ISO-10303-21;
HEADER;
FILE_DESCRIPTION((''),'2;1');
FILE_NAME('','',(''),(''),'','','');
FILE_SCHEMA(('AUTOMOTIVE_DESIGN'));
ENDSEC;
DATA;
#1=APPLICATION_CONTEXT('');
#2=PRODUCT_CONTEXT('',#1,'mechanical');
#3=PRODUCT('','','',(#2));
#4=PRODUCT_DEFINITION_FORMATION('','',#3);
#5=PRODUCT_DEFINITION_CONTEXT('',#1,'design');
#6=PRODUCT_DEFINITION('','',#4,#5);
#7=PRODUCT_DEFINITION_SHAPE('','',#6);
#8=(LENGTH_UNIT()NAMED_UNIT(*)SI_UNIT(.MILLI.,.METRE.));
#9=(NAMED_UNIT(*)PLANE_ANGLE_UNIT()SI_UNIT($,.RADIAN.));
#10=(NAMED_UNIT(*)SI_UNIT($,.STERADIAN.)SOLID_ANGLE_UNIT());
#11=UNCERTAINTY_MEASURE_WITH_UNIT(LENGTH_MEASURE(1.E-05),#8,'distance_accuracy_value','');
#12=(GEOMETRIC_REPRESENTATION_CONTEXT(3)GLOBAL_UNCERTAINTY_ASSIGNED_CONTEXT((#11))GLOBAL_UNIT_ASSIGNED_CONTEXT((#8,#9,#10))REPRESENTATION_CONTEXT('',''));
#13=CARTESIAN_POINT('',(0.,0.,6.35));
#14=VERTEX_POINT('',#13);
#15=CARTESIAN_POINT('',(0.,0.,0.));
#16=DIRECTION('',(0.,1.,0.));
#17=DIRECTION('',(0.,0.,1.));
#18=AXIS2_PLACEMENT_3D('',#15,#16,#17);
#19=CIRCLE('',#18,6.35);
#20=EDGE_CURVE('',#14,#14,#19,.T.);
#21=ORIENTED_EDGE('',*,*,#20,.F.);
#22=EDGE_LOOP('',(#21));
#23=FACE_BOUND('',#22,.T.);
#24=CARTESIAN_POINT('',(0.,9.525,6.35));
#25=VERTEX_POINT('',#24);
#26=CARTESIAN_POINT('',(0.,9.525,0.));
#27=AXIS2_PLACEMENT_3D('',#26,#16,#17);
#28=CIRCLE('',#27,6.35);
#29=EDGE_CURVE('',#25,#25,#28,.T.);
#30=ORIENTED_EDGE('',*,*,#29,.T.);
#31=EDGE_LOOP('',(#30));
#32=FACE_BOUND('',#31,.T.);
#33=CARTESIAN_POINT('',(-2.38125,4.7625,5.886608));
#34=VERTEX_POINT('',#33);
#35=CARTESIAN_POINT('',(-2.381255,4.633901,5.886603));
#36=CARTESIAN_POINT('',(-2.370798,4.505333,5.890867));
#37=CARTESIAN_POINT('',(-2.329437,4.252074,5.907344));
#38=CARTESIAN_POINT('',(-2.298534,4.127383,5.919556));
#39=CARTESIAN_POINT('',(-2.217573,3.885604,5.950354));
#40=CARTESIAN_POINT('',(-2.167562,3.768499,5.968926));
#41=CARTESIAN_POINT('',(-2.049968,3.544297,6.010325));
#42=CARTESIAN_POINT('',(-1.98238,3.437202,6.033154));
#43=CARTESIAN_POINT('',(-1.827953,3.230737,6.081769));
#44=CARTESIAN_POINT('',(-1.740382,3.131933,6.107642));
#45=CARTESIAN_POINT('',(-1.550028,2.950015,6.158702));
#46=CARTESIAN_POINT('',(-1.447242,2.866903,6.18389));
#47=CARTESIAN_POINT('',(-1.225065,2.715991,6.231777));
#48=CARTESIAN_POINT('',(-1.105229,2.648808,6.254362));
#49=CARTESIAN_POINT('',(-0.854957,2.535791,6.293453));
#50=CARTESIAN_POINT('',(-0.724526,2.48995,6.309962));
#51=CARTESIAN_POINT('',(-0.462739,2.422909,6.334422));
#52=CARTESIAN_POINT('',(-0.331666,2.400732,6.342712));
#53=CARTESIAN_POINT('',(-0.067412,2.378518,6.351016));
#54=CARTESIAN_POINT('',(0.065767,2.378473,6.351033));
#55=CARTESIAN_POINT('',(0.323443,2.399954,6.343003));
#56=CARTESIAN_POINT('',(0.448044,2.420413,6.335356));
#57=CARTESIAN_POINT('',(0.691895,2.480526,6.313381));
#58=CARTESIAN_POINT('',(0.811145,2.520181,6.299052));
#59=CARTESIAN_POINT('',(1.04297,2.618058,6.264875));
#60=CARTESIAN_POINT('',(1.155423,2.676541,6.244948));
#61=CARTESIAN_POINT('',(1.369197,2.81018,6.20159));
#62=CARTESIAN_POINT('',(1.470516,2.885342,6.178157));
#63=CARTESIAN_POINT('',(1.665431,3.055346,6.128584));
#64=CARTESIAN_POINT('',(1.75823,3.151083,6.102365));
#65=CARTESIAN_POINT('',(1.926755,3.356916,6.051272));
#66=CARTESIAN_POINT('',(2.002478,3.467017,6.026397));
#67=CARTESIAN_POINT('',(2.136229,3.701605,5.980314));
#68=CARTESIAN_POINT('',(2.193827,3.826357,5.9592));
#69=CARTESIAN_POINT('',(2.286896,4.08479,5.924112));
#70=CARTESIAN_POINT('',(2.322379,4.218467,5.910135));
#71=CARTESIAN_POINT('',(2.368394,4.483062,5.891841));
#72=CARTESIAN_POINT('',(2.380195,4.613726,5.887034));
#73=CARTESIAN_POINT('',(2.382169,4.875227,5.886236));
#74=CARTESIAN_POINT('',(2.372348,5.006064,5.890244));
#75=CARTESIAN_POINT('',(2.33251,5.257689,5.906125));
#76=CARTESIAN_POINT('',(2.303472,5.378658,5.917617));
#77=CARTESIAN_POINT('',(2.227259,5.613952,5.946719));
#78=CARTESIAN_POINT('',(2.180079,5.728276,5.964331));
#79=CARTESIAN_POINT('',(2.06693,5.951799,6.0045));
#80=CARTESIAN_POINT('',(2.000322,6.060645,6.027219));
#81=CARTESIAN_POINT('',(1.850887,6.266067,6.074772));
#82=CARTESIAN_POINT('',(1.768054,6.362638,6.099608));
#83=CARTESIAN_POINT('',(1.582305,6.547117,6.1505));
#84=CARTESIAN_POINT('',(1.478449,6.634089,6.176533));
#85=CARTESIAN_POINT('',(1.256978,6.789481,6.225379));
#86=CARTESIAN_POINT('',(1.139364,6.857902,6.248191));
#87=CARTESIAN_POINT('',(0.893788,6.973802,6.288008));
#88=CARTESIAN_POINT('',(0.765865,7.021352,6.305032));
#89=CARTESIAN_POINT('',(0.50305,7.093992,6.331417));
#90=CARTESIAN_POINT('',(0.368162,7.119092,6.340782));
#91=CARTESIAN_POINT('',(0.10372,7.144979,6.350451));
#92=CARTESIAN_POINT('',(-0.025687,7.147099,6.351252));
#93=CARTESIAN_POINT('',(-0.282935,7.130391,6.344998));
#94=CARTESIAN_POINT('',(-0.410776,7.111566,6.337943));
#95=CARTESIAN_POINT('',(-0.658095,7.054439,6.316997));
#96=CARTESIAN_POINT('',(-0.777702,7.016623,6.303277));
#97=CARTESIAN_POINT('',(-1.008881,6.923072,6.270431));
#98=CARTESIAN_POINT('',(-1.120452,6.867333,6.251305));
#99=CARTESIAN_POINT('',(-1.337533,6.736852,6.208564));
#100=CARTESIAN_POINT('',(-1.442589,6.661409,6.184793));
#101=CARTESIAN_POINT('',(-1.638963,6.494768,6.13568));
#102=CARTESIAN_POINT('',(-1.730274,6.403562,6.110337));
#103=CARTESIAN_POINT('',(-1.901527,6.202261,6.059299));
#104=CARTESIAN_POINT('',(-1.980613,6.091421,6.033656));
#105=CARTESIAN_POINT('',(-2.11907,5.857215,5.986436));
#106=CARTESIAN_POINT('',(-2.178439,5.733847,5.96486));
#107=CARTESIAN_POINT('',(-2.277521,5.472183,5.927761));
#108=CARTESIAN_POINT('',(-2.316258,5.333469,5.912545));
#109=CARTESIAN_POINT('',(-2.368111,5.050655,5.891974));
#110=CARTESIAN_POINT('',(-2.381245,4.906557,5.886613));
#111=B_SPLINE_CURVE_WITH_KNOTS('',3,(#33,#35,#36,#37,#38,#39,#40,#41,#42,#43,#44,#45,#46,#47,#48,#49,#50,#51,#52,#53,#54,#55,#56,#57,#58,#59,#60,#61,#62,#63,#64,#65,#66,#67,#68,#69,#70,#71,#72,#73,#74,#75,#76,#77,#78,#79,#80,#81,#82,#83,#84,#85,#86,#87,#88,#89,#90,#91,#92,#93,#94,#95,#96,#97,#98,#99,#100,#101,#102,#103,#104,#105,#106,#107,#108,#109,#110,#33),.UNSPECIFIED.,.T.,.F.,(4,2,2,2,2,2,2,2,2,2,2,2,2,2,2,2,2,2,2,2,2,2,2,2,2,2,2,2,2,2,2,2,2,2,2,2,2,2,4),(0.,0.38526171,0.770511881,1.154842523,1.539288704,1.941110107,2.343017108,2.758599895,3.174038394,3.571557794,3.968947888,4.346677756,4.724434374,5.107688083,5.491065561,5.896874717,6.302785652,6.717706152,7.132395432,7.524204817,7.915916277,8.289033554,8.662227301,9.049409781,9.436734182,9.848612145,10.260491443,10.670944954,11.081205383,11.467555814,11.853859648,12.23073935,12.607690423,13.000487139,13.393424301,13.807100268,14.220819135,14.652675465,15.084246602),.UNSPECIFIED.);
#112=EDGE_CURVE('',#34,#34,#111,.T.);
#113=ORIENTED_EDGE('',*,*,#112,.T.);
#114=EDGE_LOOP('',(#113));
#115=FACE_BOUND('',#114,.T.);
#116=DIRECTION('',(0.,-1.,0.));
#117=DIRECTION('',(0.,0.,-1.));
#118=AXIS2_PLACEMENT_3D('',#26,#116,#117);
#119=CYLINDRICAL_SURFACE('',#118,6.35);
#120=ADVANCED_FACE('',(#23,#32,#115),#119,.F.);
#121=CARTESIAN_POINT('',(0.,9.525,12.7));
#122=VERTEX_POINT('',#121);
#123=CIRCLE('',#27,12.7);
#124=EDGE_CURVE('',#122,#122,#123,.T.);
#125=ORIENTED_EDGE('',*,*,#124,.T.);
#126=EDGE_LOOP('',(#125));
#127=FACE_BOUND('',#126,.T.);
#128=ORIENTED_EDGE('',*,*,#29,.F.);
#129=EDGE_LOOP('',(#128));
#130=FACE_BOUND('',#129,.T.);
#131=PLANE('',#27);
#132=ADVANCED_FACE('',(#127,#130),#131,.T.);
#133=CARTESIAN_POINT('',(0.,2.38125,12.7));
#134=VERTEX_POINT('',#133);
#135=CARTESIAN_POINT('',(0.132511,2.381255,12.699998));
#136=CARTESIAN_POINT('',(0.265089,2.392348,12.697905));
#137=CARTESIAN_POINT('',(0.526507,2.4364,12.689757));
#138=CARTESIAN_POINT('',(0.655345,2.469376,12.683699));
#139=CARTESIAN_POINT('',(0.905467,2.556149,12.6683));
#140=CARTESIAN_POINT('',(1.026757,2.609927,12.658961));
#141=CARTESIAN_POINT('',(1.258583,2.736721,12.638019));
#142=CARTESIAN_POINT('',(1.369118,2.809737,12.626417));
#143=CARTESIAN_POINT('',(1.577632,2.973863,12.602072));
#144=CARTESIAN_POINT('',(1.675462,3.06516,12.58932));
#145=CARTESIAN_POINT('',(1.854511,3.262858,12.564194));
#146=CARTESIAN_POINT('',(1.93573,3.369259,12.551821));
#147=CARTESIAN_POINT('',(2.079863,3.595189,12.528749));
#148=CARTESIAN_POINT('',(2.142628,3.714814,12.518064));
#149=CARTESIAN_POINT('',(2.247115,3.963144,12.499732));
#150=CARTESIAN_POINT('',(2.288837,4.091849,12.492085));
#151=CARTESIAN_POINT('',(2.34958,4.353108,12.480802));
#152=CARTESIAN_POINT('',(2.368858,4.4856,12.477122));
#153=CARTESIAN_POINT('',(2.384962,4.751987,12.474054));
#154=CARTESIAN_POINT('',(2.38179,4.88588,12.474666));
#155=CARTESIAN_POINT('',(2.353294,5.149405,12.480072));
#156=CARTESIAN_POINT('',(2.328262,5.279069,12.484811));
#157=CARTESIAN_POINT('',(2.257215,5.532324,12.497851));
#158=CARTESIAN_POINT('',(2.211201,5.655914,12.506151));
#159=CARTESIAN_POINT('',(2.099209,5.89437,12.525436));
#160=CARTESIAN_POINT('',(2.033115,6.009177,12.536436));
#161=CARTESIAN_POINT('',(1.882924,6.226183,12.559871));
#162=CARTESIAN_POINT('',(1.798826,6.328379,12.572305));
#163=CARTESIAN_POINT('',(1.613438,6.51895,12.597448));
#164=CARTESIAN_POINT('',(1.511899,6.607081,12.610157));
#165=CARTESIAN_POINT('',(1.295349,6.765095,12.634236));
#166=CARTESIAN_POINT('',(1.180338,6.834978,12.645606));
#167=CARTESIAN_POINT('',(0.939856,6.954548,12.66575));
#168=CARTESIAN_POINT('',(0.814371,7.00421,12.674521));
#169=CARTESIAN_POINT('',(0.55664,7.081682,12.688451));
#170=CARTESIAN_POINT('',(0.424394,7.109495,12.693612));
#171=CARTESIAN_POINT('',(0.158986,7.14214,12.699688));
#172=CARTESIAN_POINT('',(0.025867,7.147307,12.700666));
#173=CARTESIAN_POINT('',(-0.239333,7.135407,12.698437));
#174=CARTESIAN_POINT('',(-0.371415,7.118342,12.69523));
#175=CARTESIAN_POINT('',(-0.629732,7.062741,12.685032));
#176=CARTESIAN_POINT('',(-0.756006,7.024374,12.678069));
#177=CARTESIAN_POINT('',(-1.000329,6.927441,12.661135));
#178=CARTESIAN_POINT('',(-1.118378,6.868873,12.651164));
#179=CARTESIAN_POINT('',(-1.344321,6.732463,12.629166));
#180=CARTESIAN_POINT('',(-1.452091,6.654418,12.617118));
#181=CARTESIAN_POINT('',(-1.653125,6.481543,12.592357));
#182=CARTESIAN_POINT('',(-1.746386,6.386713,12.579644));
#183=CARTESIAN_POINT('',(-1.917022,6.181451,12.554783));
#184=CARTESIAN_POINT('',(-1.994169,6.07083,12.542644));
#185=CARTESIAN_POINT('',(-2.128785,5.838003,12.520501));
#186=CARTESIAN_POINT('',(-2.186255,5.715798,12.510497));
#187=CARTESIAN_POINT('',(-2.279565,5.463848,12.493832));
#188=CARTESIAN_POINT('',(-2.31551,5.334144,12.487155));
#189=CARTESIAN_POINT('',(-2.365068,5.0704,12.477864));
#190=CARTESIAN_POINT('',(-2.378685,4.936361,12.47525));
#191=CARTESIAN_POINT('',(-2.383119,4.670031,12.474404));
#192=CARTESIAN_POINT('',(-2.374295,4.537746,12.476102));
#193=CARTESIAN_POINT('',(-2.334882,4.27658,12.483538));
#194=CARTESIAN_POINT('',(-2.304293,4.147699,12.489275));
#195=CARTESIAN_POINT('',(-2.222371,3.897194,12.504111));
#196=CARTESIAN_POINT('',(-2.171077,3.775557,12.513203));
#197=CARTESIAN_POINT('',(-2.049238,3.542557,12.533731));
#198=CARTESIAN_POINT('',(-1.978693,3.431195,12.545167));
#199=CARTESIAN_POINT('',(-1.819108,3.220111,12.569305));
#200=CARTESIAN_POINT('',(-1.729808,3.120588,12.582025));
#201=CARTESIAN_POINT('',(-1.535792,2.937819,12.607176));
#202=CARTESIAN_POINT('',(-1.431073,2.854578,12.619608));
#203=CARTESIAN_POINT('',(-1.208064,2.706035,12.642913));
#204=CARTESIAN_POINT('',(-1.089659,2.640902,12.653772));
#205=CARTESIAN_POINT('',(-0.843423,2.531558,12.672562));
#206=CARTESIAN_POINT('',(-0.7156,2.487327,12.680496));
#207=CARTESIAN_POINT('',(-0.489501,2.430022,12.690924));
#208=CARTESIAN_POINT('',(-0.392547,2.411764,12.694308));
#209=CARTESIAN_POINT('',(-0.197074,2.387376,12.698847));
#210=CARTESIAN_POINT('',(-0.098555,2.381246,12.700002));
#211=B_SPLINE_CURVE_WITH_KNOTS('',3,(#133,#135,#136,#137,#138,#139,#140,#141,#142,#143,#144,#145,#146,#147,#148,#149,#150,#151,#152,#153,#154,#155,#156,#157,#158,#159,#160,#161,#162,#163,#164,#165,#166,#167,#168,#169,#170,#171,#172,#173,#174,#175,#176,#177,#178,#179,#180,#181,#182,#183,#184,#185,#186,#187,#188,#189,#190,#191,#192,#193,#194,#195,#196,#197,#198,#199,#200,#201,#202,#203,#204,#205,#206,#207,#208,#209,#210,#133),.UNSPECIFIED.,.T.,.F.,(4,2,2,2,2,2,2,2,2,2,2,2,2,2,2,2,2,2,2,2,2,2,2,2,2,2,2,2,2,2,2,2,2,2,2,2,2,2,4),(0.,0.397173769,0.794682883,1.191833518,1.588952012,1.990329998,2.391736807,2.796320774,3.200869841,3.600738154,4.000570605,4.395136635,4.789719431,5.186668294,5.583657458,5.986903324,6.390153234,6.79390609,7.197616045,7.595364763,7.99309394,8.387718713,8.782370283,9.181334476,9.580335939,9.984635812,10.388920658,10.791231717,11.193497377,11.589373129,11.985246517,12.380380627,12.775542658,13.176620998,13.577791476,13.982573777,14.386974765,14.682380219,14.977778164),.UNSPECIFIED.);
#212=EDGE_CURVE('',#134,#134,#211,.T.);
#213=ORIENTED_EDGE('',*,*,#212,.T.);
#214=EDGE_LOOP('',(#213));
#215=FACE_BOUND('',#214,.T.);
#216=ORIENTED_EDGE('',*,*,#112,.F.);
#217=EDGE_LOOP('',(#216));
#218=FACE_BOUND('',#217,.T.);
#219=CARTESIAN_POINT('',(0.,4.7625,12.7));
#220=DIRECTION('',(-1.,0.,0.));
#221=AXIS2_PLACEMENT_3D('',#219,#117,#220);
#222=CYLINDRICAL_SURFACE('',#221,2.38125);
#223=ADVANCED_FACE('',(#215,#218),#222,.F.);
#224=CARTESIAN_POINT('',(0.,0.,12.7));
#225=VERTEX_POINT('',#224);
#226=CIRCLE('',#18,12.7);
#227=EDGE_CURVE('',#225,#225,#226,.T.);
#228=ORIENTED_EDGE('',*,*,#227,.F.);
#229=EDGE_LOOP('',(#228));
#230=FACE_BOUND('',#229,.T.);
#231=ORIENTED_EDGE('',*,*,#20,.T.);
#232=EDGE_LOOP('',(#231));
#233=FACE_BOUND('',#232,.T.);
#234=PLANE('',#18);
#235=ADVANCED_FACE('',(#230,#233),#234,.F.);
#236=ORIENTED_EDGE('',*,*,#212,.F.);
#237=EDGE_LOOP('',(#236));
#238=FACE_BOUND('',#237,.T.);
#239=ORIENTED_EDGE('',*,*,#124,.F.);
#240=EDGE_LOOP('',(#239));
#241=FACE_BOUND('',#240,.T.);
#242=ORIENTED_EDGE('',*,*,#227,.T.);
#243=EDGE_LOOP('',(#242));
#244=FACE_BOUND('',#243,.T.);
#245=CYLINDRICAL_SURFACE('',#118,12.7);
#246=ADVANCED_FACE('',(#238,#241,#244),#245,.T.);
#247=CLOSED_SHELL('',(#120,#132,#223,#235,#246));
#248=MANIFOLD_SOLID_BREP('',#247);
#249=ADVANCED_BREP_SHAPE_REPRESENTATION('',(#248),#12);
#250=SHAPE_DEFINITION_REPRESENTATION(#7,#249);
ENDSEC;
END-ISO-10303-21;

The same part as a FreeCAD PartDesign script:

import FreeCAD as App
import Part
import Sketcher
Q = App.Units.Quantity

doc = App.newDocument("Part")
body = doc.addObject("PartDesign::Body", "Body")

# Sketch on XZ plane
sketch1 = body.newObject("Sketcher::SketchObject", "Sketch")
sketch1.AttachmentSupport = (doc.getObject("XZ_Plane"), [""])
sketch1.MapMode = "FlatFace"
sketch1.addGeometry([
    Part.Circle(App.Vector(0, 0, 0), App.Vector(0, 0, 1), 12.7),
    Part.Circle(App.Vector(0, 0, 0), App.Vector(0, 0, 1), 6.35),
], False)
sketch1.addConstraint([
    Sketcher.Constraint("Coincident", 0, 3, -1, 1),
    Sketcher.Constraint("Coincident", 1, 3, -1, 1),
    Sketcher.Constraint("Diameter", 0, Q("1 in")),
    Sketcher.Constraint("Diameter", 1, Q("0.5 in")),
])
pad1 = body.newObject("PartDesign::Pad", "Pad")
pad1.Profile = sketch1
pad1.Length = Q("0.375 in")
pad1.Reversed = True

# Sketch on XY plane
sketch2 = body.newObject("Sketcher::SketchObject", "Sketch001")
sketch2.AttachmentSupport = (doc.getObject("XY_Plane"), [""])
sketch2.MapMode = "FlatFace"
sketch2.addGeometry(Part.Circle(App.Vector(0, 4.7625, 0), App.Vector(0, 0, 1), 2.38125), False)
sketch2.addConstraint([
    Sketcher.Constraint("PointOnObject", 0, 3, -2),
    Sketcher.Constraint("Diameter", 0, Q("0.1875 in")),
    Sketcher.Constraint("DistanceY", -1, 1, 0, 3, Q("0.1875 in")),
])
pocket1 = body.newObject("PartDesign::Pocket", "Pocket")
pocket1.Profile = sketch2
pocket1.Type = "ThroughAll"
pocket1.Reversed = True

doc.recompute()
